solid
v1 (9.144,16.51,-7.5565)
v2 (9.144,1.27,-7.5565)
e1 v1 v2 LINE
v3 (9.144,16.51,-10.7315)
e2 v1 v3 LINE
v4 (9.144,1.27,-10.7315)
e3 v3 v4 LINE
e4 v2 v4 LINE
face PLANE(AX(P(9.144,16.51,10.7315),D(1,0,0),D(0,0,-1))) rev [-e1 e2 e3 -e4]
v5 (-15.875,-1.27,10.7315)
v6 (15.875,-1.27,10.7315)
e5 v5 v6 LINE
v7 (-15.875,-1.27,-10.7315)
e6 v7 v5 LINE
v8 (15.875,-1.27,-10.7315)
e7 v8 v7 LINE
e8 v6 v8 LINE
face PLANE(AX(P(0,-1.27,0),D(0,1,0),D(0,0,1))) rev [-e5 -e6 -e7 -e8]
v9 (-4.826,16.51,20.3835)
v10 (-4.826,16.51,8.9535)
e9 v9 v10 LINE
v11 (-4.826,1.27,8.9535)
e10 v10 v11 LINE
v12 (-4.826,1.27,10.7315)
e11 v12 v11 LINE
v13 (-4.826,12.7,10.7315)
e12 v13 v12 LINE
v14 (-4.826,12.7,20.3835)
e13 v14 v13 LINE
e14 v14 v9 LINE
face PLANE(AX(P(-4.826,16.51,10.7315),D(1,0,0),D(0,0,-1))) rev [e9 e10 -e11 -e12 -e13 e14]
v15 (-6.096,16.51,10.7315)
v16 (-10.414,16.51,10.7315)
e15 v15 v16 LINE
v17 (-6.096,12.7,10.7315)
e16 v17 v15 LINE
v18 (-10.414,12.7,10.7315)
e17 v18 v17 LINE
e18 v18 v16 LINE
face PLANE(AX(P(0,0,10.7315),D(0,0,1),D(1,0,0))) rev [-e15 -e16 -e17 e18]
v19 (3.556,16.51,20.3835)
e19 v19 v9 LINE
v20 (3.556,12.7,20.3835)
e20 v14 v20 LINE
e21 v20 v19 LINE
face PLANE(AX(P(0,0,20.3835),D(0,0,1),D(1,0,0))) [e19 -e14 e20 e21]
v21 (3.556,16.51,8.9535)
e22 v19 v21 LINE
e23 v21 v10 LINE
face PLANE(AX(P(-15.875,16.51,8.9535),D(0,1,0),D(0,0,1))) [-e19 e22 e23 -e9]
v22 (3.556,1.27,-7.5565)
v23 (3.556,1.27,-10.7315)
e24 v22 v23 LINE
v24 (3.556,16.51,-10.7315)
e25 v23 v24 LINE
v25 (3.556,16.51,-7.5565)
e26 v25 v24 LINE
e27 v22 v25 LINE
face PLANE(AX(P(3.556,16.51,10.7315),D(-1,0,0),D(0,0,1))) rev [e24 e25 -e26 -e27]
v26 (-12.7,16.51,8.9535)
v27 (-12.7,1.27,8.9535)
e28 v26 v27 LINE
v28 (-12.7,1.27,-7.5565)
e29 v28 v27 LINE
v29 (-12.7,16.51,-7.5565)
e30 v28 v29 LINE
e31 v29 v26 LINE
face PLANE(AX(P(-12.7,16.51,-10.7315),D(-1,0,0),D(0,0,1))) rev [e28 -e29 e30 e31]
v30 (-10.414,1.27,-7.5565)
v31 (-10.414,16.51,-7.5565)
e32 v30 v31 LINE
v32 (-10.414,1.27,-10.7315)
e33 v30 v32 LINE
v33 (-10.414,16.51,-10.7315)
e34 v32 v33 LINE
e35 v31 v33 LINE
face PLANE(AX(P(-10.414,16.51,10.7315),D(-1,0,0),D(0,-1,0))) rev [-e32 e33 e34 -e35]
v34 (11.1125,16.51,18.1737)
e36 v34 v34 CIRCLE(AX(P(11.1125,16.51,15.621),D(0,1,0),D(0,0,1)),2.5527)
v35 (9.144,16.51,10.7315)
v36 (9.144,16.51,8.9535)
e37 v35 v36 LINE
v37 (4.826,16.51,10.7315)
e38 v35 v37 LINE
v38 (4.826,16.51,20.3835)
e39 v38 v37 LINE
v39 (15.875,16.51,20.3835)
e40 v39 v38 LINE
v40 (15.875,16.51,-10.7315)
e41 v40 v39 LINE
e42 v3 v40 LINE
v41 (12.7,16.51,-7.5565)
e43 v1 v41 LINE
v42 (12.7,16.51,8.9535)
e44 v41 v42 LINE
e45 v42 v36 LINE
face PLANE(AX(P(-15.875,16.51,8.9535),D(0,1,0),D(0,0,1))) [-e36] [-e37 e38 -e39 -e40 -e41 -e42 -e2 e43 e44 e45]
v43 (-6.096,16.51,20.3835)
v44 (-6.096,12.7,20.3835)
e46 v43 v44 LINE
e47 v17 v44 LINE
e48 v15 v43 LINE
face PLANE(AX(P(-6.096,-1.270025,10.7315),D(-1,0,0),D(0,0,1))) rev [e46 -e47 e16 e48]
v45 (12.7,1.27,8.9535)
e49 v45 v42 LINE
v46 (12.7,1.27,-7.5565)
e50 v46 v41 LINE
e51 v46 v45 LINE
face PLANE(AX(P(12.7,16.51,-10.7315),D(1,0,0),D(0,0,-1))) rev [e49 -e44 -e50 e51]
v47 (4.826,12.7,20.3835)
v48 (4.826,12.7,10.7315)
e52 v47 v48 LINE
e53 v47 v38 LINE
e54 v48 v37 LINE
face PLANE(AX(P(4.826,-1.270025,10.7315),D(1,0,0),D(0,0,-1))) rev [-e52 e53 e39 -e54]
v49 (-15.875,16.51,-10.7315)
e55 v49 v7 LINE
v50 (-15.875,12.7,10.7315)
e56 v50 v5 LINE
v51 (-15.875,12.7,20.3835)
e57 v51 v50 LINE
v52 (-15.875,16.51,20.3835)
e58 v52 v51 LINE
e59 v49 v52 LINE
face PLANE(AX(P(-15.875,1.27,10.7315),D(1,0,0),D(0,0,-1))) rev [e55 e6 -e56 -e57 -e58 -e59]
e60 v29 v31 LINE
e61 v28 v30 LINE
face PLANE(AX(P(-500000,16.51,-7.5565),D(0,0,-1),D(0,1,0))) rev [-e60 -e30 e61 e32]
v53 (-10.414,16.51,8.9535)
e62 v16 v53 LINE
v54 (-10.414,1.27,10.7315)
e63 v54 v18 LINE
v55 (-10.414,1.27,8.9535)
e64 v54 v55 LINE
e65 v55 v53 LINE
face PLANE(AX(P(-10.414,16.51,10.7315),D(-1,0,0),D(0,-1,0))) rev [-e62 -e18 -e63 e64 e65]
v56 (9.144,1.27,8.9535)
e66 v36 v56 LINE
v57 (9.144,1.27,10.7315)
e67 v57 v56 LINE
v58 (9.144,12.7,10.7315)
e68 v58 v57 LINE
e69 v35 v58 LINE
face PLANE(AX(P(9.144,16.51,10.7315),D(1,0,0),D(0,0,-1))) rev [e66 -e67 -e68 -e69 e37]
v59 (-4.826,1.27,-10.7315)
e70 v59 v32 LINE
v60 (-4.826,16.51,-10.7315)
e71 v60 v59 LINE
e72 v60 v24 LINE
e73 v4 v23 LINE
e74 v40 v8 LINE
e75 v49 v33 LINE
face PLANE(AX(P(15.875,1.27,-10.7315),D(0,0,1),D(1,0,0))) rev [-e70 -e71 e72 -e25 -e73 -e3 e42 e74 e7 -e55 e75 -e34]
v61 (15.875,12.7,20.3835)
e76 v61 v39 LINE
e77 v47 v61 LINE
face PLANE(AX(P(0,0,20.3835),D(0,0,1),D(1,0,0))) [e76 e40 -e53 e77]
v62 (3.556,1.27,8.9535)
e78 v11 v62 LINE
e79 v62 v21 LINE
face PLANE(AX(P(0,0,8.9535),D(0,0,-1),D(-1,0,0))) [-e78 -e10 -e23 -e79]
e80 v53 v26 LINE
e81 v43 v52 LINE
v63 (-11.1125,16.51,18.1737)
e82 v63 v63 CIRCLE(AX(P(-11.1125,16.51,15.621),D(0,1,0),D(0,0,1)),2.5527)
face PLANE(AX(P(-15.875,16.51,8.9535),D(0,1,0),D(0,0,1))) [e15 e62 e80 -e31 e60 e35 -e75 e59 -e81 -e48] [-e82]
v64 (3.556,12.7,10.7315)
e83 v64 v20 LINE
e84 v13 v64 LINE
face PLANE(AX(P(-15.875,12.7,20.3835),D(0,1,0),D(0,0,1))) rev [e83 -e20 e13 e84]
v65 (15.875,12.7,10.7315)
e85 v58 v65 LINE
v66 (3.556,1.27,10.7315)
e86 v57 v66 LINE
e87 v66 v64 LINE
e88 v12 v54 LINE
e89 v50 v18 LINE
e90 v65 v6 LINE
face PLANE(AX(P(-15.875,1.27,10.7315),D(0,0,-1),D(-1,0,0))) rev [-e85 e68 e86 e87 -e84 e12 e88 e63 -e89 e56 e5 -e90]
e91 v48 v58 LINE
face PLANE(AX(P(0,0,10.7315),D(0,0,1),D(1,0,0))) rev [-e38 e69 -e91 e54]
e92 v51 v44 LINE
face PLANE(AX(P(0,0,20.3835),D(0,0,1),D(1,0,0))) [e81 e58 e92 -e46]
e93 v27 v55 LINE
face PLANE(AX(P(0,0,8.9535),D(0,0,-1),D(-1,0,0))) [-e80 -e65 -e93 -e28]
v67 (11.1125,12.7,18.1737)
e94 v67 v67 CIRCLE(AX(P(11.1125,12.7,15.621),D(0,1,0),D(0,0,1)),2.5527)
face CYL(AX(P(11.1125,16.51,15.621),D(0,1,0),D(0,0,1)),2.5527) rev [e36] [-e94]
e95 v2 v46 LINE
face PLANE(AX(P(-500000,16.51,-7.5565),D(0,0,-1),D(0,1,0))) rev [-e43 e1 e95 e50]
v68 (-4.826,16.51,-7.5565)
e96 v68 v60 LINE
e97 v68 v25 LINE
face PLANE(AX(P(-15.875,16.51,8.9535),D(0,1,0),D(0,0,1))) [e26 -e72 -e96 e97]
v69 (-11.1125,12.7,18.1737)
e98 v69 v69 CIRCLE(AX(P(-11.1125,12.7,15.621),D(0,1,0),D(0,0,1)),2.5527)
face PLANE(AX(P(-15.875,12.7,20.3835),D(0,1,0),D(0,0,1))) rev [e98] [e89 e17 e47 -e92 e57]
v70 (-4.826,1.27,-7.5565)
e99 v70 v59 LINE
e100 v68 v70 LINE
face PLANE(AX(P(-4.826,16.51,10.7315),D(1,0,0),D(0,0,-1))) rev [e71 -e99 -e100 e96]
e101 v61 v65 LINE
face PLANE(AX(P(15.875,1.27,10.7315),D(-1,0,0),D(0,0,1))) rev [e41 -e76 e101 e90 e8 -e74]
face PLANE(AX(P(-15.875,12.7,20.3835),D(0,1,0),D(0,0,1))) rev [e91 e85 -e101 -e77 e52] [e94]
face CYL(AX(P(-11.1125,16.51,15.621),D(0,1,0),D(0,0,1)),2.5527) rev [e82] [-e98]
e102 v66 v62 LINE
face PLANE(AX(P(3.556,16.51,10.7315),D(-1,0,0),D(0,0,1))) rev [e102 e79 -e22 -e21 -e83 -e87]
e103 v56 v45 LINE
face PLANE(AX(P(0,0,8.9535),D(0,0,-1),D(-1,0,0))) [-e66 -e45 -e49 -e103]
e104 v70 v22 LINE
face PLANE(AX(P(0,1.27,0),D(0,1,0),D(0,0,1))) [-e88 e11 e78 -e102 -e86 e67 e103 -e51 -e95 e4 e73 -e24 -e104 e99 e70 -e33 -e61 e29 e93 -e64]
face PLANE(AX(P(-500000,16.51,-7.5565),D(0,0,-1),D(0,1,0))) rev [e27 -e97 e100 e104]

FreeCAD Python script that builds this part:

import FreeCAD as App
import Part
import Sketcher

V = App.Vector
Q = App.Units.Quantity

doc = App.newDocument("Part")
body = doc.addObject("PartDesign::Body", "Body")

# Sketch on XZ plane
sketch1 = body.newObject("Sketcher::SketchObject", "Sketch")
sketch1.AttachmentSupport = (doc.getObject("XZ_Plane"), [""])
sketch1.MapMode = "FlatFace"
sketch1.addGeometry([
    Part.LineSegment(V(-16, -11, 0), V(-16, 11, 0)),
    Part.LineSegment(V(-16, 11, 0), V(16, 11, 0)),
    Part.LineSegment(V(16, 11, 0), V(16, -11, 0)),
    Part.LineSegment(V(16, -11, 0), V(-16, -11, 0)),
], False)
sketch1.addConstraint([
    Sketcher.Constraint("Coincident", 0, 2, 1, 1),
    Sketcher.Constraint("Coincident", 1, 2, 2, 1),
    Sketcher.Constraint("Coincident", 2, 2, 3, 1),
    Sketcher.Constraint("Coincident", 3, 2, 0, 1),
    Sketcher.Constraint("Vertical", 0),
    Sketcher.Constraint("Horizontal", 1),
    Sketcher.Constraint("Vertical", 2),
    Sketcher.Constraint("Horizontal", 3),
    Sketcher.Constraint("Symmetric", 0, 2, 2, 2, -1, 1),
    Sketcher.Constraint("DistanceX", 1, 1, 1, 2, Q("1.25 in")),
    Sketcher.Constraint("DistanceY", 0, 1, 0, 2, Q("0.845 in")),
])
pad1 = body.newObject("PartDesign::Pad", "Pad")
pad1.Profile = sketch1
pad1.Length = Q("0.1 in")
pad1.Midplane = True

# Sketch on XY plane
sketch2 = body.newObject("Sketcher::SketchObject", "Sketch001")
sketch2.AttachmentSupport = (doc.getObject("XY_Plane"), [""])
sketch2.MapMode = "FlatFace"
sketch2.AttachmentOffset = App.Placement(V(0, 0, 0.4225 * 25.4), App.Rotation())
sketch2.addGeometry([
    Part.LineSegment(V(-16, 17, 0), V(-16, 1, 0)),
    Part.LineSegment(V(-16, 1, 0), V(16, 1, 0)),
    Part.LineSegment(V(16, 1, 0), V(16, 17, 0)),
    Part.LineSegment(V(16, 17, 0), V(-16, 17, 0)),
], False)
sketch2.addConstraint([
    Sketcher.Constraint("Coincident", 0, 2, 1, 1),
    Sketcher.Constraint("Coincident", 1, 2, 2, 1),
    Sketcher.Constraint("Coincident", 2, 2, 3, 1),
    Sketcher.Constraint("Coincident", 3, 2, 0, 1),
    Sketcher.Constraint("Vertical", 0),
    Sketcher.Constraint("Horizontal", 1),
    Sketcher.Constraint("Vertical", 2),
    Sketcher.Constraint("Horizontal", 3),
    Sketcher.Constraint("DistanceY", 0, 2, 0, 1, Q("0.6 in")),
    Sketcher.Constraint("DistanceX", 1, 1, 1, 2, Q("1.25 in")),
    Sketcher.Constraint("DistanceY", -1, 1, 0, 2, Q("0.05 in")),
    Sketcher.Constraint("DistanceX", 0, 2, -1, 1, Q("0.625 in")),
])
pad2 = body.newObject("PartDesign::Pad", "Pad001")
pad2.Profile = sketch2
pad2.Length = Q("0.07 in")
pad2.Reversed = True

# Sketch on XY plane
sketch3 = body.newObject("Sketcher::SketchObject", "Sketch002")
sketch3.AttachmentSupport = (doc.getObject("XY_Plane"), [""])
sketch3.MapMode = "FlatFace"
sketch3.AttachmentOffset = App.Placement(V(0, 0, 0.3525 * 25.4), App.Rotation())
sketch3.addGeometry([
    Part.LineSegment(V(15.9, 16.5, 0), V(15.9, 1.3, 0)),  # 0
    Part.LineSegment(V(15.9, 1.3, 0), V(12.7, 1.3, 0)),  # 1
    Part.LineSegment(V(12.7, 1.3, 0), V(12.7, 16.5, 0)),  # 2
    Part.LineSegment(V(12.7, 16.5, 0), V(15.9, 16.5, 0)),  # 3
    Part.LineSegment(V(-12.7, 16.5, 0), V(-12.7, 1.3, 0)),  # 4
    Part.LineSegment(V(-12.7, 1.3, 0), V(-15.9, 1.3, 0)),  # 5
    Part.LineSegment(V(-15.9, 1.3, 0), V(-15.9, 16.5, 0)),  # 6
    Part.LineSegment(V(-15.9, 16.5, 0), V(-12.7, 16.5, 0)),  # 7
], False)
sketch3.addConstraint([
    Sketcher.Constraint("Coincident", 0, 2, 1, 1),
    Sketcher.Constraint("Coincident", 1, 2, 2, 1),
    Sketcher.Constraint("Coincident", 2, 2, 3, 1),
    Sketcher.Constraint("Coincident", 3, 2, 0, 1),
    Sketcher.Constraint("Coincident", 4, 2, 5, 1),
    Sketcher.Constraint("Coincident", 5, 2, 6, 1),
    Sketcher.Constraint("Coincident", 6, 2, 7, 1),
    Sketcher.Constraint("Coincident", 7, 2, 4, 1),
    Sketcher.Constraint("Vertical", 0),
    Sketcher.Constraint("Horizontal", 1),
    Sketcher.Constraint("Vertical", 2),
    Sketcher.Constraint("Horizontal", 3),
    Sketcher.Constraint("Vertical", 4),
    Sketcher.Constraint("Horizontal", 5),
    Sketcher.Constraint("Vertical", 6),
    Sketcher.Constraint("Horizontal", 7),
    Sketcher.Constraint("Symmetric", 1, 2, 4, 2, -2),
    Sketcher.Constraint("Symmetric", 3, 2, 6, 2, -2),
    Sketcher.Constraint("DistanceY", 0, 2, 0, 1, Q("0.6 in")),
    Sketcher.Constraint("DistanceX", 4, 2, 1, 2, Q("1 in")),
    Sketcher.Constraint("DistanceX", 1, 2, 1, 1, Q("0.125 in")),
    Sketcher.Constraint("DistanceY", -1, 1, 0, 2, Q("0.05 in")),
])
pad3 = body.newObject("PartDesign::Pad", "Pad002")
pad3.Profile = sketch3
pad3.Length = Q("0.775 in")
pad3.Reversed = True

# Sketch on YZ plane
sketch4 = body.newObject("Sketcher::SketchObject", "Sketch003")
sketch4.AttachmentSupport = (doc.getObject("YZ_Plane"), [""])
sketch4.MapMode = "FlatFace"
sketch4.AttachmentOffset = App.Placement(V(0, 0, 0.5 * 25.4), App.Rotation())
sketch4.addGeometry([
    Part.LineSegment(V(16.5, -10.7, 0), V(1.3, -10.7, 0)),
    Part.LineSegment(V(1.3, -10.7, 0), V(1.3, -7.6, 0)),
    Part.LineSegment(V(1.3, -7.6, 0), V(16.5, -7.6, 0)),
    Part.LineSegment(V(16.5, -7.6, 0), V(16.5, -10.7, 0)),
], False)
sketch4.addConstraint([
    Sketcher.Constraint("Coincident", 0, 2, 1, 1),
    Sketcher.Constraint("Coincident", 1, 2, 2, 1),
    Sketcher.Constraint("Coincident", 2, 2, 3, 1),
    Sketcher.Constraint("Coincident", 3, 2, 0, 1),
    Sketcher.Constraint("Horizontal", 0),
    Sketcher.Constraint("Vertical", 1),
    Sketcher.Constraint("Horizontal", 2),
    Sketcher.Constraint("Vertical", 3),
    Sketcher.Constraint("DistanceX", 0, 2, 0, 1, Q("0.6 in")),
    Sketcher.Constraint("DistanceY", 1, 1, 1, 2, Q("0.125 in")),
    Sketcher.Constraint("DistanceX", -1, 1, 0, 2, Q("0.05 in")),
    Sketcher.Constraint("DistanceY", 0, 2, -1, 1, Q("0.4225 in")),
])
pad4 = body.newObject("PartDesign::Pad", "Pad003")
pad4.Profile = sketch4
pad4.Type = "UpToFirst"
pad4.Reversed = True

# Sketch on XY plane
sketch5 = body.newObject("Sketcher::SketchObject", "Sketch004")
sketch5.AttachmentSupport = (doc.getObject("XY_Plane"), [""])
sketch5.MapMode = "FlatFace"
sketch5.AttachmentOffset = App.Placement(V(0, 0, -0.4225 * 25.4), App.Rotation())
sketch5.addGeometry([
    Part.LineSegment(V(9, 17, 0), V(9, 1, 0)),  # 0
    Part.LineSegment(V(9, 1, 0), V(4, 1, 0)),  # 1
    Part.LineSegment(V(4, 1, 0), V(4, 17, 0)),  # 2
    Part.LineSegment(V(4, 17, 0), V(9, 17, 0)),  # 3
    Part.LineSegment(V(-5, 17, 0), V(-5, 1, 0)),  # 4
    Part.LineSegment(V(-5, 1, 0), V(-10, 1, 0)),  # 5
    Part.LineSegment(V(-10, 1, 0), V(-10, 17, 0)),  # 6
    Part.LineSegment(V(-10, 17, 0), V(-5, 17, 0)),  # 7
], False)
sketch5.addConstraint([
    Sketcher.Constraint("Coincident", 0, 2, 1, 1),
    Sketcher.Constraint("Coincident", 1, 2, 2, 1),
    Sketcher.Constraint("Coincident", 2, 2, 3, 1),
    Sketcher.Constraint("Coincident", 3, 2, 0, 1),
    Sketcher.Constraint("Coincident", 4, 2, 5, 1),
    Sketcher.Constraint("Coincident", 5, 2, 6, 1),
    Sketcher.Constraint("Coincident", 6, 2, 7, 1),
    Sketcher.Constraint("Coincident", 7, 2, 4, 1),
    Sketcher.Constraint("Vertical", 0),
    Sketcher.Constraint("Horizontal", 1),
    Sketcher.Constraint("Vertical", 2),
    Sketcher.Constraint("Horizontal", 3),
    Sketcher.Constraint("Vertical", 4),
    Sketcher.Constraint("Horizontal", 5),
    Sketcher.Constraint("Vertical", 6),
    Sketcher.Constraint("Horizontal", 7),
    Sketcher.Constraint("Horizontal", 1, 2, 4, 2),
    Sketcher.Constraint("Horizontal", 3, 2, 6, 2),
    Sketcher.Constraint("Equal", 3, 5),
    Sketcher.Constraint("DistanceY", 0, 2, 0, 1, Q("0.6 in")),
    Sketcher.Constraint("DistanceX", 1, 2, 1, 1, Q("0.22 in")),
    Sketcher.Constraint("DistanceX", -1, 1, 0, 2, Q("0.36 in")),
    Sketcher.Constraint("DistanceY", -1, 1, 0, 2, Q("0.05 in")),
    Sketcher.Constraint("DistanceX", 4, 2, -1, 1, Q("0.19 in")),
])
pocket1 = body.newObject("PartDesign::Pocket", "Pocket")
pocket1.Profile = sketch5
pocket1.Type = "ThroughAll"
pocket1.Reversed = True

# Sketch on XY plane
sketch6 = body.newObject("Sketcher::SketchObject", "Sketch005")
sketch6.AttachmentSupport = (doc.getObject("XY_Plane"), [""])
sketch6.MapMode = "FlatFace"
sketch6.AttachmentOffset = App.Placement(V(0, 0, 0.4225 * 25.4), App.Rotation())
sketch6.addGeometry([
    Part.LineSegment(V(-15.9, 16.5, 0), V(-15.9, 12.7, 0)),
    Part.LineSegment(V(-15.9, 12.7, 0), V(15.9, 12.7, 0)),
    Part.LineSegment(V(15.9, 12.7, 0), V(15.9, 16.5, 0)),
    Part.LineSegment(V(15.9, 16.5, 0), V(-15.9, 16.5, 0)),
], False)
sketch6.addConstraint([
    Sketcher.Constraint("Coincident", 0, 2, 1, 1),
    Sketcher.Constraint("Coincident", 1, 2, 2, 1),
    Sketcher.Constraint("Coincident", 2, 2, 3, 1),
    Sketcher.Constraint("Coincident", 3, 2, 0, 1),
    Sketcher.Constraint("Vertical", 0),
    Sketcher.Constraint("Horizontal", 1),
    Sketcher.Constraint("Vertical", 2),
    Sketcher.Constraint("Horizontal", 3),
    Sketcher.Constraint("DistanceX", 1, 1, 1, 2, Q("1.25 in")),
    Sketcher.Constraint("DistanceY", 0, 2, 0, 1, Q("0.15 in")),
    Sketcher.Constraint("DistanceY", -1, 1, 0, 2, Q("0.5 in")),
    Sketcher.Constraint("DistanceX", 0, 2, -1, 1, Q("0.625 in")),
])
pad5 = body.newObject("PartDesign::Pad", "Pad004")
pad5.Profile = sketch6
pad5.Length = Q("0.38 in")

# Sketch on XZ plane
sketch7 = body.newObject("Sketcher::SketchObject", "Sketch006")
sketch7.AttachmentSupport = (doc.getObject("XZ_Plane"), [""])
sketch7.MapMode = "FlatFace"
sketch7.AttachmentOffset = App.Placement(V(0, 0, -0.65 * 25.4), App.Rotation())
sketch7.addGeometry([
    Part.Circle(V(11.1, 15.6, 0), V(0, 0, 1), 2.6),
    Part.Circle(V(-11.1, 15.6, 0), V(0, 0, 1), 2.6),
], False)
sketch7.addConstraint([
    Sketcher.Constraint("Equal", 0, 1),
    Sketcher.Constraint("Symmetric", 0, 3, 1, 3, -2),
    Sketcher.Constraint("Diameter", 0, Q("0.201 in")),
    Sketcher.Constraint("DistanceX", -1, 1, 0, 3, Q("0.4375 in")),
    Sketcher.Constraint("DistanceY", -1, 1, 0, 3, Q("0.615 in")),
])
doc.recompute()
hole = body.newObject("PartDesign::Hole", "Hole")
hole.Profile = sketch7
hole.ThreadType = "None"
hole.Diameter = Q("0.201 in")
hole.DepthType = "ThroughAll"
hole.Reversed = True

# Sketch on XZ plane
sketch8 = body.newObject("Sketcher::SketchObject", "Sketch007")
sketch8.AttachmentSupport = (doc.getObject("XZ_Plane"), [""])
sketch8.MapMode = "FlatFace"
sketch8.AttachmentOffset = App.Placement(V(0, 0, -0.65 * 25.4), App.Rotation())
sketch8.addGeometry([
    Part.LineSegment(V(-6.1, 10.7, 0), V(-6.1, 20.4, 0)),  # 0
    Part.LineSegment(V(-6.1, 20.4, 0), V(-4.8, 20.4, 0)),  # 1
    Part.LineSegment(V(-4.8, 20.4, 0), V(-4.8, 10.7, 0)),  # 2
    Part.LineSegment(V(-4.8, 10.7, 0), V(-6.1, 10.7, 0)),  # 3
    Part.LineSegment(V(3.6, 10.7, 0), V(3.6, 20.4, 0)),  # 4
    Part.LineSegment(V(3.6, 20.4, 0), V(4.8, 20.4, 0)),  # 5
    Part.LineSegment(V(4.8, 20.4, 0), V(4.8, 10.7, 0)),  # 6
    Part.LineSegment(V(4.8, 10.7, 0), V(3.6, 10.7, 0)),  # 7
], False)
sketch8.addConstraint([
    Sketcher.Constraint("Coincident", 0, 2, 1, 1),
    Sketcher.Constraint("Coincident", 1, 2, 2, 1),
    Sketcher.Constraint("Coincident", 2, 2, 3, 1),
    Sketcher.Constraint("Coincident", 3, 2, 0, 1),
    Sketcher.Constraint("Coincident", 4, 2, 5, 1),
    Sketcher.Constraint("Coincident", 5, 2, 6, 1),
    Sketcher.Constraint("Coincident", 6, 2, 7, 1),
    Sketcher.Constraint("Coincident", 7, 2, 4, 1),
    Sketcher.Constraint("Vertical", 0),
    Sketcher.Constraint("Horizontal", 1),
    Sketcher.Constraint("Vertical", 2),
    Sketcher.Constraint("Horizontal", 3),
    Sketcher.Constraint("Vertical", 4),
    Sketcher.Constraint("Horizontal", 5),
    Sketcher.Constraint("Vertical", 6),
    Sketcher.Constraint("Horizontal", 7),
    Sketcher.Constraint("Symmetric", 1, 2, 5, 2, -2),
    Sketcher.Constraint("Horizontal", 3, 2, 6, 2),
    Sketcher.Constraint("Equal", 3, 5),
    Sketcher.Constraint("DistanceX", 1, 1, 1, 2, Q("0.05 in")),
    Sketcher.Constraint("DistanceY", 0, 1, 0, 2, Q("0.38 in")),
    Sketcher.Constraint("DistanceX", 0, 2, -1, 1, Q("0.24 in")),
    Sketcher.Constraint("DistanceY", -1, 1, 0, 2, Q("0.8025 in")),
])
pocket2 = body.newObject("PartDesign::Pocket", "Pocket001")
pocket2.Profile = sketch8
pocket2.Type = "ThroughAll"
pocket2.Reversed = True

doc.recompute()
